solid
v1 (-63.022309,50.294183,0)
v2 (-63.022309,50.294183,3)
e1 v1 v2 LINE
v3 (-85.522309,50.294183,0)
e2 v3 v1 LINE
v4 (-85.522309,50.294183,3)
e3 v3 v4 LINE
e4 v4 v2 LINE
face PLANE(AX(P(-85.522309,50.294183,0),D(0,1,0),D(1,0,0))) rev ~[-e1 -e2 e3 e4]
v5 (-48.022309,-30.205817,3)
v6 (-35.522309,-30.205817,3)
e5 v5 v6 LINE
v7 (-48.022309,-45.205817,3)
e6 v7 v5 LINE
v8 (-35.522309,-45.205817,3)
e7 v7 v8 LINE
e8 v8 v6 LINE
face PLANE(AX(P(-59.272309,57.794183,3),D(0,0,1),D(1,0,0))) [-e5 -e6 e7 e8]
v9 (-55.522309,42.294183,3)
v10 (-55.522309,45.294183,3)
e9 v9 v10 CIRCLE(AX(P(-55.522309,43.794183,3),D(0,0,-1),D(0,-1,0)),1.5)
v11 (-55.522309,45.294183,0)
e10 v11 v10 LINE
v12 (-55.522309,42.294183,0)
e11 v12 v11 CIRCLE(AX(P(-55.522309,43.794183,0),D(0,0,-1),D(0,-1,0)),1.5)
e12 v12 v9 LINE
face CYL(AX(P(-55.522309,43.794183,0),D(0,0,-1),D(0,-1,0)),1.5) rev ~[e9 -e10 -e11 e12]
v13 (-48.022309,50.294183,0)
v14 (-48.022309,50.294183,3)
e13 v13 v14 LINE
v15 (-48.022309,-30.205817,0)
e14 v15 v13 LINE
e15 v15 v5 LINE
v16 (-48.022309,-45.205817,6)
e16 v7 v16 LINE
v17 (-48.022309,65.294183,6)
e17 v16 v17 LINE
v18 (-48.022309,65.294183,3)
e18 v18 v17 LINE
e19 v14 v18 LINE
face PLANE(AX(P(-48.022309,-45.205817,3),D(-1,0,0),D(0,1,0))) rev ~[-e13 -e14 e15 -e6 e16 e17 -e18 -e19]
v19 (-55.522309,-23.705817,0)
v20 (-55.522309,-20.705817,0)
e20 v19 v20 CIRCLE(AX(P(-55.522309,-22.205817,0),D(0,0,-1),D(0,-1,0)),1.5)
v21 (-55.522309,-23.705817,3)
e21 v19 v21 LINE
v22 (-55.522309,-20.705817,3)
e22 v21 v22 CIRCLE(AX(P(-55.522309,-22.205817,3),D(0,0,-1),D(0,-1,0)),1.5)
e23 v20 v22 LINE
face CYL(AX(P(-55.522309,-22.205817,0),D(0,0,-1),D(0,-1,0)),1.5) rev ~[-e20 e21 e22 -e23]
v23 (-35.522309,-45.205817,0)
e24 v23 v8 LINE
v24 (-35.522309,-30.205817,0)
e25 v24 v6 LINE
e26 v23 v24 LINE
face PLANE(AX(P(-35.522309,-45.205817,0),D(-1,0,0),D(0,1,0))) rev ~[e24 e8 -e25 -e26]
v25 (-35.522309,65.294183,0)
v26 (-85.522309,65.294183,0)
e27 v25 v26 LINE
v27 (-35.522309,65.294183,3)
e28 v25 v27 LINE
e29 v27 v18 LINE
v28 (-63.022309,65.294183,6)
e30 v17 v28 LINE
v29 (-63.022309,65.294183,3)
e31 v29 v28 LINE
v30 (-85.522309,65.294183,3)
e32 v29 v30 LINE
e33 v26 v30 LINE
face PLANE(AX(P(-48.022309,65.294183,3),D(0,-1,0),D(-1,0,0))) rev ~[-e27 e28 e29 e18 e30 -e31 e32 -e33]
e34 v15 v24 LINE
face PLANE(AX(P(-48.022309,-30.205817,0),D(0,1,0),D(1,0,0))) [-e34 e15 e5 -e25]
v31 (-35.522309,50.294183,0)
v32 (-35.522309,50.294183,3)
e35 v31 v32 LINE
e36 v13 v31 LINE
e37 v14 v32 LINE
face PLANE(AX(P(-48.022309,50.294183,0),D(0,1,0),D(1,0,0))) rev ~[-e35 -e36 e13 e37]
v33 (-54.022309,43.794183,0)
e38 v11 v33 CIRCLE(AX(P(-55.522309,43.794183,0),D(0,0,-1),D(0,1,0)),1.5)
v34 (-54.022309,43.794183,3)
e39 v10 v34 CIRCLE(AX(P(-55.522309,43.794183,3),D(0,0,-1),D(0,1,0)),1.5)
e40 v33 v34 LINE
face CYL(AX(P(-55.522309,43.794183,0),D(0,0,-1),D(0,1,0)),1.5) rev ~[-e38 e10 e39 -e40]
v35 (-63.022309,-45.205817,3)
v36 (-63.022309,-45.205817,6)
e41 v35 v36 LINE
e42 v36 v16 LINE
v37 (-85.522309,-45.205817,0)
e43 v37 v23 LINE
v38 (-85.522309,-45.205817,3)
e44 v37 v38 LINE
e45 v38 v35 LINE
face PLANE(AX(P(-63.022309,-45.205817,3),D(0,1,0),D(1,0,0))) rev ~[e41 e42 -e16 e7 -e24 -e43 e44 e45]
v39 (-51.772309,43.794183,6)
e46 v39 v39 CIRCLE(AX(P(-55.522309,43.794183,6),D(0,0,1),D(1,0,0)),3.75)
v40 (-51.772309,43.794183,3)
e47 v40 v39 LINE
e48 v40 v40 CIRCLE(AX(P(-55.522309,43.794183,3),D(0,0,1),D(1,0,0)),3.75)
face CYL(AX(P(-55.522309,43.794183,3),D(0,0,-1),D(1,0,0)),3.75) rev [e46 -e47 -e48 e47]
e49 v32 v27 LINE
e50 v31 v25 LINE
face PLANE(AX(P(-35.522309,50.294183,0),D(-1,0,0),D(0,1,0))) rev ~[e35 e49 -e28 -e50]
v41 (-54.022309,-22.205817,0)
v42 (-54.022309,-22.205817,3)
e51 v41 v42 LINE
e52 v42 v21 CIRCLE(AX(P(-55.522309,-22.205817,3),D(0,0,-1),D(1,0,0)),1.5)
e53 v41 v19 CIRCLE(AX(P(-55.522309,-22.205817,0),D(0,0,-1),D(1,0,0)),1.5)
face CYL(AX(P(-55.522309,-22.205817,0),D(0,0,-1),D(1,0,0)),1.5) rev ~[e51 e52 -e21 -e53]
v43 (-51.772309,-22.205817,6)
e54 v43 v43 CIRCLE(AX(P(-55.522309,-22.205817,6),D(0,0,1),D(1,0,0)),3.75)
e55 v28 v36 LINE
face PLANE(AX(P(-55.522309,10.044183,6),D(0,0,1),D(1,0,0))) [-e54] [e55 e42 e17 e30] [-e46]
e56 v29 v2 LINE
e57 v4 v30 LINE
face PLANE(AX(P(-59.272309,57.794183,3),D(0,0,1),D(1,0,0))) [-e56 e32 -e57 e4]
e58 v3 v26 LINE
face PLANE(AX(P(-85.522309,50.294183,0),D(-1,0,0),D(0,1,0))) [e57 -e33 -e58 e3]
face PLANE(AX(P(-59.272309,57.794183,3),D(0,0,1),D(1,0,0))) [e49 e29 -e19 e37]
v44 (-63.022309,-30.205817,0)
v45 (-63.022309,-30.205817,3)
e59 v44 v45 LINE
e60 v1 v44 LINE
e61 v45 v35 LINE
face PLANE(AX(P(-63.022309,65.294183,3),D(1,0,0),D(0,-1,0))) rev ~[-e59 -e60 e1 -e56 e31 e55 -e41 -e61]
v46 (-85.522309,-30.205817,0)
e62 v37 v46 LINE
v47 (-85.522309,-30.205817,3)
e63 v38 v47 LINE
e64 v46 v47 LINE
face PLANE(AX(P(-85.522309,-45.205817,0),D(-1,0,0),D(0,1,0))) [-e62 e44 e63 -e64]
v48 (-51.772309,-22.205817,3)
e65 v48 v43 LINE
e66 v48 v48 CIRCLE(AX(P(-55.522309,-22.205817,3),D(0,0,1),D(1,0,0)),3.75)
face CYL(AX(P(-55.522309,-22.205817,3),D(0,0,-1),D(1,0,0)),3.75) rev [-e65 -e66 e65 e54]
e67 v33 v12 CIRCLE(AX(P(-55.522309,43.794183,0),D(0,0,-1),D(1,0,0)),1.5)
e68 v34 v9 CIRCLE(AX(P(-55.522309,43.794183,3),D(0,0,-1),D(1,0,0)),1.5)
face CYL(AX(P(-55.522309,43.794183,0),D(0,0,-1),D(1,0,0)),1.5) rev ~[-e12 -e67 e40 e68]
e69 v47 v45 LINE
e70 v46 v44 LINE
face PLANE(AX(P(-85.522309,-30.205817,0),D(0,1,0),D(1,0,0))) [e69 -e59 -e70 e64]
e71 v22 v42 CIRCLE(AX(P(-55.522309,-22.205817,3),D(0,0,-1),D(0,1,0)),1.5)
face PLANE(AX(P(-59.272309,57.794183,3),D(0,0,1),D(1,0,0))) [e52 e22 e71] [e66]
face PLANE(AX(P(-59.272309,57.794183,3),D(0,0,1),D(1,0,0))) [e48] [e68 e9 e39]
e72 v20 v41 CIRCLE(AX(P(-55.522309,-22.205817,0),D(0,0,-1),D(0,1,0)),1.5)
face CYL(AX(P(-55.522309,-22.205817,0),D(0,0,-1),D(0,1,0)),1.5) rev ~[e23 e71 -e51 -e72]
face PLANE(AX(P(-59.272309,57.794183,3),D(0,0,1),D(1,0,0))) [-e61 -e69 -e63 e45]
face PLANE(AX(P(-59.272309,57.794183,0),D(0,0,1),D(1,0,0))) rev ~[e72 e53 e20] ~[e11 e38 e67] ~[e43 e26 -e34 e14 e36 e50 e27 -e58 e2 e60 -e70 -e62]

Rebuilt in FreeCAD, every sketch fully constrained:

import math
import FreeCAD as App
import Part
import Sketcher
from FreeCAD import Vector


def add_polygon(sketch, points):
    """Adds a closed chain of lines whose ends are joined by coincident constraints."""
    first, n = sketch.GeometryCount, len(points)
    for a, b in zip(points, points[1:] + points[:1]):
        sketch.addGeometry(Part.LineSegment(App.Vector(*a, 0), App.Vector(*b, 0)), False)
    for i in range(n):
        sketch.addConstraint(Sketcher.Constraint("Coincident", first + i, 2, first + (i + 1) % n, 1))

doc = App.newDocument("Part")
body = doc.addObject("PartDesign::Body", "Body")

sketch1 = body.newObject("Sketcher::SketchObject", "Sketch")
sketch1.AttachmentSupport = (doc.getObject("XY_Plane"), [""])
sketch1.MapMode = "FlatFace"
add_polygon(sketch1, [(-48, -30.2), (-48, 50.3), (-35.5, 50.3), (-35.5, 65.3), (-85.5, 65.3), (-85.5, 50.3), (-63, 50.3), (-63, -30.2), (-85.5, -30.2), (-85.5, -45.2), (-35.5, -45.2), (-35.5, -30.2)])
sketch1.addGeometry(Part.ArcOfCircle(Part.Circle(Vector(-55.5, -22.2, 0), Vector(0, 0, 1), 1.5), math.radians(0), math.radians(90)), False)
sketch1.addGeometry(Part.ArcOfCircle(Part.Circle(Vector(-55.5, -22.2, 0), Vector(0, 0, 1), 1.5), math.radians(-90), math.radians(0)), False)
sketch1.addGeometry(Part.ArcOfCircle(Part.Circle(Vector(-55.5, -22.2, 0), Vector(0, 0, 1), 1.5), math.radians(90), math.radians(270)), False)
sketch1.addGeometry(Part.ArcOfCircle(Part.Circle(Vector(-55.5, 43.8, 0), Vector(0, 0, 1), 1.5), math.radians(90), math.radians(270)), False)
sketch1.addGeometry(Part.ArcOfCircle(Part.Circle(Vector(-55.5, 43.8, 0), Vector(0, 0, 1), 1.5), math.radians(0), math.radians(90)), False)
sketch1.addGeometry(Part.ArcOfCircle(Part.Circle(Vector(-55.5, 43.8, 0), Vector(0, 0, 1), 1.5), math.radians(-90), math.radians(0)), False)
sketch1.addConstraint([
    Sketcher.Constraint("Tangent", 12, 1, 13, 2),
    Sketcher.Constraint("Tangent", 13, 1, 14, 2),
    Sketcher.Constraint("Tangent", 14, 1, 12, 2),
    Sketcher.Constraint("Tangent", 15, 1, 16, 2),
    Sketcher.Constraint("Tangent", 16, 1, 17, 2),
    Sketcher.Constraint("Tangent", 17, 1, 15, 2),
    Sketcher.Constraint("Vertical", 0),
    Sketcher.Constraint("Horizontal", 1),
    Sketcher.Constraint("Vertical", 2),
    Sketcher.Constraint("Horizontal", 3),
    Sketcher.Constraint("Vertical", 4),
    Sketcher.Constraint("Horizontal", 5),
    Sketcher.Constraint("Vertical", 6),
    Sketcher.Constraint("Horizontal", 7),
    Sketcher.Constraint("Vertical", 8),
    Sketcher.Constraint("Horizontal", 9),
    Sketcher.Constraint("Vertical", 10),
    Sketcher.Constraint("Horizontal", 11),
    Sketcher.Constraint("Equal", 14, 15),
    Sketcher.Constraint("Horizontal", 1, 2, 4, 2),
    Sketcher.Constraint("Horizontal", 7, 2, 10, 2),
    Sketcher.Constraint("Horizontal", 14, 3, 12, 1),
    Sketcher.Constraint("Horizontal", 17, 3, 16, 1),
    Sketcher.Constraint("Vertical", 14, 3, 15, 3),
    Sketcher.Constraint("Vertical", 4, 2, 7, 2),
    Sketcher.Constraint("Vertical", 2, 2, 9, 2),
    Sketcher.Constraint("Vertical", 17, 3, 13, 1),
    Sketcher.Constraint("Vertical", 13, 1, 14, 1),
    Sketcher.Constraint("Vertical", 14, 1, 15, 1),
    Sketcher.Constraint("Vertical", 15, 1, 17, 1),
    Sketcher.Constraint("Equal", 4, 8),
    Sketcher.Constraint("Radius", 12, 1.5),
    Sketcher.Constraint("DistanceX", 3, 2, 3, 1, 50.0),
    Sketcher.Constraint("DistanceY", 2, 1, 2, 2, 15.0),
    Sketcher.Constraint("DistanceX", 1, 1, 1, 2, 12.5),
    Sketcher.Constraint("DistanceX", 5, 1, 5, 2, 22.5),
    Sketcher.Constraint("DistanceY", 0, 1, 0, 2, 80.5),
    Sketcher.Constraint("DistanceY", 12, 3, 15, 3, 66.0),
    Sketcher.Constraint("DistanceX", 15, 3, 1, 2, 20.0),
    Sketcher.Constraint("DistanceY", 6, 2, 12, 3, 8.0),
    Sketcher.Constraint("DistanceX", 12, 3, -1, 1, 55.522309),
    Sketcher.Constraint("DistanceY", 12, 3, -1, 1, 22.205817),
])
pad1 = body.newObject("PartDesign::Pad", "Pad")
pad1.Profile = sketch1
pad1.Length = 3

sketch2 = body.newObject("Sketcher::SketchObject", "Sketch001")
sketch2.AttachmentSupport = (doc.getObject("XY_Plane"), [""])
sketch2.MapMode = "FlatFace"
sketch2.AttachmentOffset = App.Placement(Vector(0, 0, 3), App.Rotation())
add_polygon(sketch2, [(-48, 65.3), (-63, 65.3), (-63, -45.2), (-48, -45.2)])
sketch2.addGeometry(Part.Circle(Vector(-55.5, -22.2, 0), Vector(0, 0, 1), 3.8), False)
sketch2.addGeometry(Part.Circle(Vector(-55.5, 43.8, 0), Vector(0, 0, 1), 3.8), False)
sketch2.addConstraint([
    Sketcher.Constraint("Horizontal", 0),
    Sketcher.Constraint("Vertical", 1),
    Sketcher.Constraint("Horizontal", 2),
    Sketcher.Constraint("Vertical", 3),
    Sketcher.Constraint("Equal", 4, 5),
    Sketcher.Constraint("Vertical", 4, 3, 5, 3),
    Sketcher.Constraint("Diameter", 4, 7.5),
    Sketcher.Constraint("DistanceX", 0, 2, 0, 1, 15.0),
    Sketcher.Constraint("DistanceY", 1, 2, 1, 1, 110.5),
    Sketcher.Constraint("DistanceY", 4, 3, 5, 3, 66.0),
    Sketcher.Constraint("DistanceY", 1, 2, 4, 3, 23.0),
    Sketcher.Constraint("DistanceX", 0, 2, 5, 3, 7.5),
    Sketcher.Constraint("DistanceX", 4, 3, -1, 1, 55.522309),
    Sketcher.Constraint("DistanceY", 4, 3, -1, 1, 22.205817),
])
pad2 = body.newObject("PartDesign::Pad", "Pad001")
pad2.Profile = sketch2
pad2.Length = 3

doc.recompute()
